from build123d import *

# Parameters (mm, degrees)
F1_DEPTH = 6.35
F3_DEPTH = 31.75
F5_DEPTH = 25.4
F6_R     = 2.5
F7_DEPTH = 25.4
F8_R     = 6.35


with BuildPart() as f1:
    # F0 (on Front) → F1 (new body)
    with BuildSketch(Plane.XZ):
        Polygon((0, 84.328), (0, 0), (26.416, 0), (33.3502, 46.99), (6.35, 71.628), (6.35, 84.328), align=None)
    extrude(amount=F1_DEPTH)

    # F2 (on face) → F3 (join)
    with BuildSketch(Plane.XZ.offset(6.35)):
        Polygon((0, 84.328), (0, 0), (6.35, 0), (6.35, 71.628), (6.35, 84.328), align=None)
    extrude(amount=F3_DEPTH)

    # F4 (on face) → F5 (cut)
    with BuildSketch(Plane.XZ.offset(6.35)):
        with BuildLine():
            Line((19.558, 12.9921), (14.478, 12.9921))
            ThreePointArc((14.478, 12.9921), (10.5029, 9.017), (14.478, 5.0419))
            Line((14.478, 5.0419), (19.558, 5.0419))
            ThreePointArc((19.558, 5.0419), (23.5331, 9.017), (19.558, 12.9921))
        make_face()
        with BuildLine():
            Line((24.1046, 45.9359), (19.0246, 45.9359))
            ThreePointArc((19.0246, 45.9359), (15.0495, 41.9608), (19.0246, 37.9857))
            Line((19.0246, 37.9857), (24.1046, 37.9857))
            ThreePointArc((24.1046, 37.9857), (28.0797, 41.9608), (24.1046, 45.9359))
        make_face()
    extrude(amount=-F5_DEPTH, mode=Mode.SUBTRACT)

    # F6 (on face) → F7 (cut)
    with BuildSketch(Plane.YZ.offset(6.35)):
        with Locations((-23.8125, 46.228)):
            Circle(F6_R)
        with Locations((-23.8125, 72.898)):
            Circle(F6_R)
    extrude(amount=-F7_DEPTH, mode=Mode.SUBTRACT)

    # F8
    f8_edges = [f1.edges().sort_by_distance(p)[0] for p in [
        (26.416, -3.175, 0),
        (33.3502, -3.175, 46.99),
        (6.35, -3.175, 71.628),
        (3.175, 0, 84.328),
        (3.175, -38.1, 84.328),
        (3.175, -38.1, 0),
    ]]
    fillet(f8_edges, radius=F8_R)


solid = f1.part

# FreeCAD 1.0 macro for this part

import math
import FreeCAD as App
import Part
import Sketcher
Q = App.Units.Quantity


def edges_at(feature, points):
    """Names of the edges that pass closest to the given points."""
    edges = feature.Shape.Edges
    near = lambda p: min(range(len(edges)), key=lambda i: edges[i].distToShape(Part.Vertex(*p))[0])
    return sorted({f"Edge{near(p) + 1}" for p in points})


def add_polygon(sketch, points):
    """Adds a closed chain of lines whose ends are joined by coincident constraints."""
    first, n = sketch.GeometryCount, len(points)
    for a, b in zip(points, points[1:] + points[:1]):
        sketch.addGeometry(Part.LineSegment(App.Vector(*a, 0), App.Vector(*b, 0)), False)
    for i in range(n):
        sketch.addConstraint(Sketcher.Constraint("Coincident", first + i, 2, first + (i + 1) % n, 1))

doc = App.newDocument("Part")
params = doc.addObject("Spreadsheet::Sheet", "Params")
for row, (alias, value) in enumerate([
    ("sketch1_height", "0.5 in"),
    ("sketch1_width", "1.04 in"),
    ("sketch1_width2", "0.25 in"),
    ("sketch1_height2", "3.32 in"),
    ("pad1_length", "0.25 in"),
    ("sketch2_width", "0.25 in"),
    ("sketch2_height", "3.32 in"),
    ("pad2_length", "1.25 in"),
    ("sketch3_width", "0.2 in"),
    ("pocket1_length", "1 in"),
    ("pocket2_length", "1 in"),
    ("fillet_radius", "0.25 in"),
], start=1):
    params.set(f"A{row}", alias)
    params.set(f"B{row}", "=" + value)
    params.setAlias(f"B{row}", alias)

body = doc.addObject("PartDesign::Body", "Body")

# Sketch on XZ plane
sketch1 = body.newObject("Sketcher::SketchObject", "Sketch")
sketch1.AttachmentSupport = (doc.getObject("XZ_Plane"), [""])
sketch1.MapMode = "FlatFace"
add_polygon(sketch1, [(0, 84), (0, 0), (26, 0), (33, 47), (6, 72), (6, 84)])  # lines 0-5
sketch1.addConstraint(Sketcher.Constraint("Vertical", 0))
sketch1.addConstraint(Sketcher.Constraint("Horizontal", 1))
sketch1.addConstraint(Sketcher.Constraint("Vertical", 4))
sketch1.addConstraint(Sketcher.Constraint("Horizontal", 5))
sketch1.addConstraint(Sketcher.Constraint("Coincident", 0, 2, -1, 1))
sketch1.addConstraint(Sketcher.Constraint("DistanceY", 4, 1, 4, 2, Q("0.5 in")))
sketch1.addConstraint(Sketcher.Constraint("DistanceX", 1, 1, 1, 2, Q("1.04 in")))
sketch1.addConstraint(Sketcher.Constraint("DistanceX", 5, 2, 5, 1, Q("0.25 in")))
sketch1.addConstraint(Sketcher.Constraint("DistanceY", 0, 2, 0, 1, Q("3.32 in")))
sketch1.addConstraint(Sketcher.Constraint("DistanceY", -1, 1, 2, 2, Q("1.85 in")))
sketch1.addConstraint(Sketcher.Constraint("DistanceX", -1, 1, 2, 2, Q("1.313 in")))
sketch1.setExpression("Constraints[11]", "Params.sketch1_height")
sketch1.setExpression("Constraints[12]", "Params.sketch1_width")
sketch1.setExpression("Constraints[13]", "Params.sketch1_width2")
sketch1.setExpression("Constraints[14]", "Params.sketch1_height2")
pad1 = body.newObject("PartDesign::Pad", "Pad")
pad1.Profile = sketch1
pad1.setExpression("Length", "Params.pad1_length")

# Sketch on XZ plane
sketch2 = body.newObject("Sketcher::SketchObject", "Sketch001")
sketch2.AttachmentSupport = (doc.getObject("XZ_Plane"), [""])
sketch2.MapMode = "FlatFace"
sketch2.AttachmentOffset = App.Placement(App.Vector(0, 0, 0.25 * 25.4), App.Rotation())
add_polygon(sketch2, [(0, 84), (0, 0), (6, 0), (6, 84)])  # lines 0-3
sketch2.addConstraint(Sketcher.Constraint("Vertical", 0))
sketch2.addConstraint(Sketcher.Constraint("Horizontal", 1))
sketch2.addConstraint(Sketcher.Constraint("Vertical", 2))
sketch2.addConstraint(Sketcher.Constraint("Horizontal", 3))
sketch2.addConstraint(Sketcher.Constraint("Coincident", 0, 2, -1, 1))
sketch2.addConstraint(Sketcher.Constraint("DistanceX", 1, 1, 1, 2, Q("0.25 in")))
sketch2.addConstraint(Sketcher.Constraint("DistanceY", 0, 2, 0, 1, Q("3.32 in")))
sketch2.setExpression("Constraints[9]", "Params.sketch2_width")
sketch2.setExpression("Constraints[10]", "Params.sketch2_height")
pad2 = body.newObject("PartDesign::Pad", "Pad001")
pad2.Profile = sketch2
pad2.setExpression("Length", "Params.pad2_length")

# Sketch on XZ plane
sketch3 = body.newObject("Sketcher::SketchObject", "Sketch002")
sketch3.AttachmentSupport = (doc.getObject("XZ_Plane"), [""])
sketch3.MapMode = "FlatFace"
sketch3.AttachmentOffset = App.Placement(App.Vector(0, 0, 0.25 * 25.4), App.Rotation())
sketch3.addGeometry(Part.LineSegment(App.Vector(19.6, 13, 0), App.Vector(14.5, 13, 0)), False)
sketch3.addGeometry(Part.ArcOfCircle(Part.Circle(App.Vector(14.5, 9, 0), App.Vector(0, 0, 1), 4), math.radians(90), math.radians(270)), False)
sketch3.addGeometry(Part.LineSegment(App.Vector(14.5, 5, 0), App.Vector(19.6, 5, 0)), False)
sketch3.addGeometry(Part.ArcOfCircle(Part.Circle(App.Vector(19.6, 9, 0), App.Vector(0, 0, 1), 4), math.radians(-90), math.radians(90)), False)
sketch3.addGeometry(Part.LineSegment(App.Vector(24.1, 45.9, 0), App.Vector(19, 45.9, 0)), False)
sketch3.addGeometry(Part.ArcOfCircle(Part.Circle(App.Vector(19, 42, 0), App.Vector(0, 0, 1), 4), math.radians(90), math.radians(270)), False)
sketch3.addGeometry(Part.LineSegment(App.Vector(19, 38, 0), App.Vector(24.1, 38, 0)), False)
sketch3.addGeometry(Part.ArcOfCircle(Part.Circle(App.Vector(24.1, 42, 0), App.Vector(0, 0, 1), 4), math.radians(-90), math.radians(90)), False)
sketch3.addConstraint(Sketcher.Constraint("Tangent", 0, 2, 1, 1))
sketch3.addConstraint(Sketcher.Constraint("Tangent", 1, 2, 2, 1))
sketch3.addConstraint(Sketcher.Constraint("Tangent", 2, 2, 3, 1))
sketch3.addConstraint(Sketcher.Constraint("Tangent", 3, 2, 0, 1))
sketch3.addConstraint(Sketcher.Constraint("Tangent", 4, 2, 5, 1))
sketch3.addConstraint(Sketcher.Constraint("Tangent", 5, 2, 6, 1))
sketch3.addConstraint(Sketcher.Constraint("Tangent", 6, 2, 7, 1))
sketch3.addConstraint(Sketcher.Constraint("Tangent", 7, 2, 4, 1))
sketch3.addConstraint(Sketcher.Constraint("Horizontal", 0))
sketch3.addConstraint(Sketcher.Constraint("Horizontal", 2))
sketch3.addConstraint(Sketcher.Constraint("Horizontal", 4))
sketch3.addConstraint(Sketcher.Constraint("Horizontal", 6))
sketch3.addConstraint(Sketcher.Constraint("Equal", 3, 5))
sketch3.addConstraint(Sketcher.Constraint("Equal", 2, 4))
sketch3.addConstraint(Sketcher.Constraint("DistanceX", 0, 2, 0, 1, Q("0.2 in")))
sketch3.addConstraint(Sketcher.Constraint("Radius", 1, Q("0.1565 in")))
sketch3.addConstraint(Sketcher.Constraint("DistanceX", -1, 1, 1, 3, Q("0.57 in")))
sketch3.addConstraint(Sketcher.Constraint("DistanceY", -1, 1, 1, 3, Q("0.355 in")))
sketch3.addConstraint(Sketcher.Constraint("DistanceX", -1, 1, 5, 3, Q("0.749 in")))
sketch3.addConstraint(Sketcher.Constraint("DistanceY", -1, 1, 5, 3, Q("1.652 in")))
sketch3.setExpression("Constraints[14]", "Params.sketch3_width")
pocket1 = body.newObject("PartDesign::Pocket", "Pocket")
pocket1.Profile = sketch3
pocket1.setExpression("Length", "Params.pocket1_length")

# Sketch on YZ plane
sketch4 = body.newObject("Sketcher::SketchObject", "Sketch003")
sketch4.AttachmentSupport = (doc.getObject("YZ_Plane"), [""])
sketch4.MapMode = "FlatFace"
sketch4.AttachmentOffset = App.Placement(App.Vector(0, 0, 0.25 * 25.4), App.Rotation())
sketch4.addGeometry(Part.Circle(App.Vector(-23.8, 46.2, 0), App.Vector(0, 0, 1), 2.5), False)
sketch4.addGeometry(Part.Circle(App.Vector(-23.8, 72.9, 0), App.Vector(0, 0, 1), 2.5), False)
sketch4.addConstraint(Sketcher.Constraint("Equal", 0, 1))
sketch4.addConstraint(Sketcher.Constraint("Vertical", 0, 3, 1, 3))
sketch4.addConstraint(Sketcher.Constraint("Diameter", 0, 5.0))
sketch4.addConstraint(Sketcher.Constraint("DistanceY", -1, 1, 0, 3, Q("1.82 in")))
sketch4.addConstraint(Sketcher.Constraint("DistanceY", -1, 1, 1, 3, Q("2.87 in")))
sketch4.addConstraint(Sketcher.Constraint("DistanceX", 0, 3, -1, 1, Q("0.9375 in")))
pocket2 = body.newObject("PartDesign::Pocket", "Pocket001")
pocket2.Profile = sketch4
pocket2.setExpression("Length", "Params.pocket2_length")
doc.recompute()

fillet = body.newObject("PartDesign::Fillet", "Fillet")
fillet.Base = (pocket2, edges_at(pocket2, [
    (26.416, -3.175, 0),
    (33.35, -3.175, 46.99),
    (6.35, -3.175, 71.628),
    (3.175, 0, 84.328),
    (3.175, -38.1, 84.328),
    (3.175, -38.1, 0),
]))
fillet.setExpression("Radius", "Params.fillet_radius")

doc.recompute()
